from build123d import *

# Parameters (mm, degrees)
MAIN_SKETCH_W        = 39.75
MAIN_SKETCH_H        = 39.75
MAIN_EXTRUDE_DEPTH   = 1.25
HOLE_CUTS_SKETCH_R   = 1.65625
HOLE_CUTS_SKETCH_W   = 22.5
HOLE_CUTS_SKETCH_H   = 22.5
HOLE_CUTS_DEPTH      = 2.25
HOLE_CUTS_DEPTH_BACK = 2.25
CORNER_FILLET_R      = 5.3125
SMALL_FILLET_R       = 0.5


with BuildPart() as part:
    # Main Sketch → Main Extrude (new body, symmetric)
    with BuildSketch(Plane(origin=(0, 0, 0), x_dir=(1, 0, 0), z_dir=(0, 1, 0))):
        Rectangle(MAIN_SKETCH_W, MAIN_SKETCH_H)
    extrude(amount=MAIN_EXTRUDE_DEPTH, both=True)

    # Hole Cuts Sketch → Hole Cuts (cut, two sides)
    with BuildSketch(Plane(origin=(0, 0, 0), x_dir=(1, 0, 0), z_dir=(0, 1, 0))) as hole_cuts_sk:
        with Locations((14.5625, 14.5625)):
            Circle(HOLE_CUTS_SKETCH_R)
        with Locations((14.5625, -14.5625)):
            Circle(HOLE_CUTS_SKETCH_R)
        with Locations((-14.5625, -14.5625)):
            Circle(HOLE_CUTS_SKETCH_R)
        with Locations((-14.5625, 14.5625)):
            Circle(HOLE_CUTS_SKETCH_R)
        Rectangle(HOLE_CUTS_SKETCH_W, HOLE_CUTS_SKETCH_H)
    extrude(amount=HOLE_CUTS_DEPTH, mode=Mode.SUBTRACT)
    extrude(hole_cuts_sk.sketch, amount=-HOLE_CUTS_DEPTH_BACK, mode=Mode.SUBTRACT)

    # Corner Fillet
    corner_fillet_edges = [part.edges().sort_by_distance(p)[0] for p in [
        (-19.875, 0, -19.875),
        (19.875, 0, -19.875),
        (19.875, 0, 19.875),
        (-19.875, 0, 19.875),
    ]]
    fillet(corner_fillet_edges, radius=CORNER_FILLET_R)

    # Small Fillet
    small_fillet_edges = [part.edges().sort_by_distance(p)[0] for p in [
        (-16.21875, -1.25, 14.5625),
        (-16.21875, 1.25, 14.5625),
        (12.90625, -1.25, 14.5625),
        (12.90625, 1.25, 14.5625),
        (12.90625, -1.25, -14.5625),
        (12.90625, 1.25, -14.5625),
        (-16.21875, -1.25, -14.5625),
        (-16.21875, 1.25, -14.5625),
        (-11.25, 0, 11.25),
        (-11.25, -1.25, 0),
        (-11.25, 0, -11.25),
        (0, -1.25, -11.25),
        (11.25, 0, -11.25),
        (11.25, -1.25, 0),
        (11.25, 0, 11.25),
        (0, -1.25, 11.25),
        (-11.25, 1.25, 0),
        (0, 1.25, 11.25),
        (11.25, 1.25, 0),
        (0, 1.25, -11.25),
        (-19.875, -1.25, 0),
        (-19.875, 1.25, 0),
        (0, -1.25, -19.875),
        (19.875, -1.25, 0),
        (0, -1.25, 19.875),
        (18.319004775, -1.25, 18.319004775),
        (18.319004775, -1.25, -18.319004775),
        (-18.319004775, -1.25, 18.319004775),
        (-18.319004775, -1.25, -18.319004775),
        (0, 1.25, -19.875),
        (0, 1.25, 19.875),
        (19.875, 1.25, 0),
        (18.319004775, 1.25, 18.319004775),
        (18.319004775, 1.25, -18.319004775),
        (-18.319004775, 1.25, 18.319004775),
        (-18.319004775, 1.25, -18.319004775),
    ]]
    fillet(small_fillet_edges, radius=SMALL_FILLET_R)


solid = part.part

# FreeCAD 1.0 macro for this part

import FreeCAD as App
import Part
import Sketcher
Q = App.Units.Quantity


def edges_at(feature, points):
    """Names of the edges that pass closest to the given points."""
    edges = feature.Shape.Edges
    near = lambda p: min(range(len(edges)), key=lambda i: edges[i].distToShape(Part.Vertex(*p))[0])
    return sorted({f"Edge{near(p) + 1}" for p in points})

doc = App.newDocument("Part")
body = doc.addObject("PartDesign::Body", "Body")

sketch1 = body.newObject("Sketcher::SketchObject", "Sketch")
sketch1.AttachmentSupport = (doc.getObject("XZ_Plane"), [""])
sketch1.MapMode = "FlatFace"
sketch1.addGeometry([
    Part.LineSegment(App.Vector(-20, -20, 0), App.Vector(-20, 20, 0)),
    Part.LineSegment(App.Vector(-20, 20, 0), App.Vector(20, 20, 0)),
    Part.LineSegment(App.Vector(20, 20, 0), App.Vector(20, -20, 0)),
    Part.LineSegment(App.Vector(20, -20, 0), App.Vector(-20, -20, 0)),
], False)
sketch1.addConstraint([
    Sketcher.Constraint("Coincident", 0, 2, 1, 1),
    Sketcher.Constraint("Coincident", 1, 2, 2, 1),
    Sketcher.Constraint("Coincident", 2, 2, 3, 1),
    Sketcher.Constraint("Coincident", 3, 2, 0, 1),
    Sketcher.Constraint("Vertical", 0),
    Sketcher.Constraint("Horizontal", 1),
    Sketcher.Constraint("Vertical", 2),
    Sketcher.Constraint("Horizontal", 3),
    Sketcher.Constraint("Symmetric", 0, 2, 2, 2, -1, 1),
    Sketcher.Constraint("Equal", 3, 0),
    Sketcher.Constraint("DistanceX", 1, 1, 1, 2, Q("39.75 mm")),
])
pad1 = body.newObject("PartDesign::Pad", "Pad")
pad1.Profile = sketch1
pad1.Length = 2.5
pad1.Midplane = True

sketch2 = body.newObject("Sketcher::SketchObject", "Sketch001")
sketch2.AttachmentSupport = (doc.getObject("XZ_Plane"), [""])
sketch2.MapMode = "FlatFace"
sketch2.addGeometry([
    Part.Circle(App.Vector(14.6, -14.6, 0), App.Vector(0, 0, 1), 1.7),
    Part.Circle(App.Vector(14.6, 14.6, 0), App.Vector(0, 0, 1), 1.7),
    Part.Circle(App.Vector(-14.6, 14.6, 0), App.Vector(0, 0, 1), 1.7),
    Part.Circle(App.Vector(-14.6, -14.6, 0), App.Vector(0, 0, 1), 1.7),
    Part.LineSegment(App.Vector(-11.2, -11.2, 0), App.Vector(-11.2, 11.2, 0)),
    Part.LineSegment(App.Vector(-11.2, 11.2, 0), App.Vector(11.2, 11.2, 0)),
    Part.LineSegment(App.Vector(11.2, 11.2, 0), App.Vector(11.2, -11.2, 0)),
    Part.LineSegment(App.Vector(11.2, -11.2, 0), App.Vector(-11.2, -11.2, 0)),
], False)
sketch2.addConstraint([
    Sketcher.Constraint("Coincident", 4, 2, 5, 1),
    Sketcher.Constraint("Coincident", 5, 2, 6, 1),
    Sketcher.Constraint("Coincident", 6, 2, 7, 1),
    Sketcher.Constraint("Coincident", 7, 2, 4, 1),
    Sketcher.Constraint("Vertical", 4),
    Sketcher.Constraint("Horizontal", 5),
    Sketcher.Constraint("Vertical", 6),
    Sketcher.Constraint("Horizontal", 7),
    Sketcher.Constraint("Equal", 0, 1),
    Sketcher.Constraint("Equal", 1, 2),
    Sketcher.Constraint("Equal", 2, 3),
    Sketcher.Constraint("Symmetric", 0, 3, 2, 3, -1, 1),
    Sketcher.Constraint("Symmetric", 1, 3, 3, 3, -1, 1),
    Sketcher.Constraint("Symmetric", 4, 2, 6, 2, -1, 1),
    Sketcher.Constraint("Symmetric", 1, 3, 2, 3, -2),
    Sketcher.Constraint("Equal", 7, 4),
    Sketcher.Constraint("DistanceX", 5, 1, 5, 2, Q("22.5 mm")),
    Sketcher.Constraint("Diameter", 0, Q("3.3125 mm")),
    Sketcher.Constraint("DistanceY", 0, 3, 1, 3, Q("29.125 mm")),
    Sketcher.Constraint("DistanceX", 2, 3, 1, 3, Q("29.125 mm")),
])
pocket1 = body.newObject("PartDesign::Pocket", "Pocket")
pocket1.Profile = sketch2
pocket1.Type = "ThroughAll"
pocket1.Midplane = True
doc.recompute()

fillet = body.newObject("PartDesign::Fillet", "Fillet")
fillet.Base = (pocket1, edges_at(pocket1, [
    (-19.875, 0, -19.875),
    (19.875, 0, -19.875),
    (19.875, 0, 19.875),
    (-19.875, 0, 19.875),
]))
fillet.Radius = 5.3125
doc.recompute()

fillet2 = body.newObject("PartDesign::Fillet", "Fillet001")
fillet2.Base = (fillet, ["Edge1"])
fillet2.UseAllEdges = True
fillet2.Radius = 0.5

doc.recompute()
